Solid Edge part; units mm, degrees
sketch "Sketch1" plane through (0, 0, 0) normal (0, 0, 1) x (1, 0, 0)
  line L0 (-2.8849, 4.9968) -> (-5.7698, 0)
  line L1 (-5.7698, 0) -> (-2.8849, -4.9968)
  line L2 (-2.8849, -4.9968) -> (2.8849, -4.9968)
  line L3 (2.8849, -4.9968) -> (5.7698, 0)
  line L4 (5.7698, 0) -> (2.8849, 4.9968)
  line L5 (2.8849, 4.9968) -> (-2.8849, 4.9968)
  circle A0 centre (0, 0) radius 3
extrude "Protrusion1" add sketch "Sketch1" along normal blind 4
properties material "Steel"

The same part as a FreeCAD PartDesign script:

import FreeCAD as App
import Part
import Sketcher
Q = App.Units.Quantity


def add_polygon(sketch, points):
    """Adds a closed chain of lines whose ends are joined by coincident constraints."""
    first, n = sketch.GeometryCount, len(points)
    for a, b in zip(points, points[1:] + points[:1]):
        sketch.addGeometry(Part.LineSegment(App.Vector(*a, 0), App.Vector(*b, 0)), False)
    for i in range(n):
        sketch.addConstraint(Sketcher.Constraint("Coincident", first + i, 2, first + (i + 1) % n, 1))

doc = App.newDocument("Part")
params = doc.addObject("Spreadsheet::Sheet", "Params")
for row, (alias, value) in enumerate([
    ("sketch1_diameter", "6 mm"),
    ("pad1_length", "4 mm"),
], start=1):
    params.set(f"A{row}", alias)
    params.set(f"B{row}", "=" + value)
    params.setAlias(f"B{row}", alias)

body = doc.addObject("PartDesign::Body", "Body")

# Sketch on XY plane
sketch1 = doc.addObject("Sketcher::SketchObject", "Sketch")
body.addObject(sketch1)
sketch1.AttachmentSupport = (doc.XY_Plane, [""])
sketch1.MapMode = "FlatFace"
add_polygon(sketch1, [(2.9, 5), (-2.9, 5), (-5.8, 0), (-2.9, -5), (2.9, -5), (5.8, 0)])  # lines 0-5
sketch1.addGeometry(Part.Circle(App.Vector(0, 0, 0), App.Vector(0, 0, 1), 3), False)  # 6
sketch1.addConstraint([
    Sketcher.Constraint("Horizontal", 0),
    Sketcher.Constraint("Horizontal", 3),
    Sketcher.Constraint("Coincident", 6, 3, -1, 1),
    Sketcher.Constraint("Symmetric", 0, 2, 3, 2, -1, 1),
    Sketcher.Constraint("Symmetric", 1, 2, 4, 2, -1, 1),
    Sketcher.Constraint("PointOnObject", 1, 2, -1),
    Sketcher.Constraint("Parallel", 2, 5),
    Sketcher.Constraint("Vertical", 0, 2, 2, 2),
    Sketcher.Constraint("Diameter", 6, 6.0),
    Sketcher.Constraint("Angle", 1, Q("-120 deg")),
    Sketcher.Constraint("DistanceX", 0, 2, 0, 1, 5.7698),
    Sketcher.Constraint("DistanceX", 1, 2, 0, 2, 2.885),
])
sketch1.setExpression("Constraints[14]", "Params.sketch1_diameter")
pad1 = doc.addObject("PartDesign::Pad", "Pad")
body.addObject(pad1)
pad1.Profile = sketch1
pad1.setExpression("Length", "Params.pad1_length")

doc.recompute()
